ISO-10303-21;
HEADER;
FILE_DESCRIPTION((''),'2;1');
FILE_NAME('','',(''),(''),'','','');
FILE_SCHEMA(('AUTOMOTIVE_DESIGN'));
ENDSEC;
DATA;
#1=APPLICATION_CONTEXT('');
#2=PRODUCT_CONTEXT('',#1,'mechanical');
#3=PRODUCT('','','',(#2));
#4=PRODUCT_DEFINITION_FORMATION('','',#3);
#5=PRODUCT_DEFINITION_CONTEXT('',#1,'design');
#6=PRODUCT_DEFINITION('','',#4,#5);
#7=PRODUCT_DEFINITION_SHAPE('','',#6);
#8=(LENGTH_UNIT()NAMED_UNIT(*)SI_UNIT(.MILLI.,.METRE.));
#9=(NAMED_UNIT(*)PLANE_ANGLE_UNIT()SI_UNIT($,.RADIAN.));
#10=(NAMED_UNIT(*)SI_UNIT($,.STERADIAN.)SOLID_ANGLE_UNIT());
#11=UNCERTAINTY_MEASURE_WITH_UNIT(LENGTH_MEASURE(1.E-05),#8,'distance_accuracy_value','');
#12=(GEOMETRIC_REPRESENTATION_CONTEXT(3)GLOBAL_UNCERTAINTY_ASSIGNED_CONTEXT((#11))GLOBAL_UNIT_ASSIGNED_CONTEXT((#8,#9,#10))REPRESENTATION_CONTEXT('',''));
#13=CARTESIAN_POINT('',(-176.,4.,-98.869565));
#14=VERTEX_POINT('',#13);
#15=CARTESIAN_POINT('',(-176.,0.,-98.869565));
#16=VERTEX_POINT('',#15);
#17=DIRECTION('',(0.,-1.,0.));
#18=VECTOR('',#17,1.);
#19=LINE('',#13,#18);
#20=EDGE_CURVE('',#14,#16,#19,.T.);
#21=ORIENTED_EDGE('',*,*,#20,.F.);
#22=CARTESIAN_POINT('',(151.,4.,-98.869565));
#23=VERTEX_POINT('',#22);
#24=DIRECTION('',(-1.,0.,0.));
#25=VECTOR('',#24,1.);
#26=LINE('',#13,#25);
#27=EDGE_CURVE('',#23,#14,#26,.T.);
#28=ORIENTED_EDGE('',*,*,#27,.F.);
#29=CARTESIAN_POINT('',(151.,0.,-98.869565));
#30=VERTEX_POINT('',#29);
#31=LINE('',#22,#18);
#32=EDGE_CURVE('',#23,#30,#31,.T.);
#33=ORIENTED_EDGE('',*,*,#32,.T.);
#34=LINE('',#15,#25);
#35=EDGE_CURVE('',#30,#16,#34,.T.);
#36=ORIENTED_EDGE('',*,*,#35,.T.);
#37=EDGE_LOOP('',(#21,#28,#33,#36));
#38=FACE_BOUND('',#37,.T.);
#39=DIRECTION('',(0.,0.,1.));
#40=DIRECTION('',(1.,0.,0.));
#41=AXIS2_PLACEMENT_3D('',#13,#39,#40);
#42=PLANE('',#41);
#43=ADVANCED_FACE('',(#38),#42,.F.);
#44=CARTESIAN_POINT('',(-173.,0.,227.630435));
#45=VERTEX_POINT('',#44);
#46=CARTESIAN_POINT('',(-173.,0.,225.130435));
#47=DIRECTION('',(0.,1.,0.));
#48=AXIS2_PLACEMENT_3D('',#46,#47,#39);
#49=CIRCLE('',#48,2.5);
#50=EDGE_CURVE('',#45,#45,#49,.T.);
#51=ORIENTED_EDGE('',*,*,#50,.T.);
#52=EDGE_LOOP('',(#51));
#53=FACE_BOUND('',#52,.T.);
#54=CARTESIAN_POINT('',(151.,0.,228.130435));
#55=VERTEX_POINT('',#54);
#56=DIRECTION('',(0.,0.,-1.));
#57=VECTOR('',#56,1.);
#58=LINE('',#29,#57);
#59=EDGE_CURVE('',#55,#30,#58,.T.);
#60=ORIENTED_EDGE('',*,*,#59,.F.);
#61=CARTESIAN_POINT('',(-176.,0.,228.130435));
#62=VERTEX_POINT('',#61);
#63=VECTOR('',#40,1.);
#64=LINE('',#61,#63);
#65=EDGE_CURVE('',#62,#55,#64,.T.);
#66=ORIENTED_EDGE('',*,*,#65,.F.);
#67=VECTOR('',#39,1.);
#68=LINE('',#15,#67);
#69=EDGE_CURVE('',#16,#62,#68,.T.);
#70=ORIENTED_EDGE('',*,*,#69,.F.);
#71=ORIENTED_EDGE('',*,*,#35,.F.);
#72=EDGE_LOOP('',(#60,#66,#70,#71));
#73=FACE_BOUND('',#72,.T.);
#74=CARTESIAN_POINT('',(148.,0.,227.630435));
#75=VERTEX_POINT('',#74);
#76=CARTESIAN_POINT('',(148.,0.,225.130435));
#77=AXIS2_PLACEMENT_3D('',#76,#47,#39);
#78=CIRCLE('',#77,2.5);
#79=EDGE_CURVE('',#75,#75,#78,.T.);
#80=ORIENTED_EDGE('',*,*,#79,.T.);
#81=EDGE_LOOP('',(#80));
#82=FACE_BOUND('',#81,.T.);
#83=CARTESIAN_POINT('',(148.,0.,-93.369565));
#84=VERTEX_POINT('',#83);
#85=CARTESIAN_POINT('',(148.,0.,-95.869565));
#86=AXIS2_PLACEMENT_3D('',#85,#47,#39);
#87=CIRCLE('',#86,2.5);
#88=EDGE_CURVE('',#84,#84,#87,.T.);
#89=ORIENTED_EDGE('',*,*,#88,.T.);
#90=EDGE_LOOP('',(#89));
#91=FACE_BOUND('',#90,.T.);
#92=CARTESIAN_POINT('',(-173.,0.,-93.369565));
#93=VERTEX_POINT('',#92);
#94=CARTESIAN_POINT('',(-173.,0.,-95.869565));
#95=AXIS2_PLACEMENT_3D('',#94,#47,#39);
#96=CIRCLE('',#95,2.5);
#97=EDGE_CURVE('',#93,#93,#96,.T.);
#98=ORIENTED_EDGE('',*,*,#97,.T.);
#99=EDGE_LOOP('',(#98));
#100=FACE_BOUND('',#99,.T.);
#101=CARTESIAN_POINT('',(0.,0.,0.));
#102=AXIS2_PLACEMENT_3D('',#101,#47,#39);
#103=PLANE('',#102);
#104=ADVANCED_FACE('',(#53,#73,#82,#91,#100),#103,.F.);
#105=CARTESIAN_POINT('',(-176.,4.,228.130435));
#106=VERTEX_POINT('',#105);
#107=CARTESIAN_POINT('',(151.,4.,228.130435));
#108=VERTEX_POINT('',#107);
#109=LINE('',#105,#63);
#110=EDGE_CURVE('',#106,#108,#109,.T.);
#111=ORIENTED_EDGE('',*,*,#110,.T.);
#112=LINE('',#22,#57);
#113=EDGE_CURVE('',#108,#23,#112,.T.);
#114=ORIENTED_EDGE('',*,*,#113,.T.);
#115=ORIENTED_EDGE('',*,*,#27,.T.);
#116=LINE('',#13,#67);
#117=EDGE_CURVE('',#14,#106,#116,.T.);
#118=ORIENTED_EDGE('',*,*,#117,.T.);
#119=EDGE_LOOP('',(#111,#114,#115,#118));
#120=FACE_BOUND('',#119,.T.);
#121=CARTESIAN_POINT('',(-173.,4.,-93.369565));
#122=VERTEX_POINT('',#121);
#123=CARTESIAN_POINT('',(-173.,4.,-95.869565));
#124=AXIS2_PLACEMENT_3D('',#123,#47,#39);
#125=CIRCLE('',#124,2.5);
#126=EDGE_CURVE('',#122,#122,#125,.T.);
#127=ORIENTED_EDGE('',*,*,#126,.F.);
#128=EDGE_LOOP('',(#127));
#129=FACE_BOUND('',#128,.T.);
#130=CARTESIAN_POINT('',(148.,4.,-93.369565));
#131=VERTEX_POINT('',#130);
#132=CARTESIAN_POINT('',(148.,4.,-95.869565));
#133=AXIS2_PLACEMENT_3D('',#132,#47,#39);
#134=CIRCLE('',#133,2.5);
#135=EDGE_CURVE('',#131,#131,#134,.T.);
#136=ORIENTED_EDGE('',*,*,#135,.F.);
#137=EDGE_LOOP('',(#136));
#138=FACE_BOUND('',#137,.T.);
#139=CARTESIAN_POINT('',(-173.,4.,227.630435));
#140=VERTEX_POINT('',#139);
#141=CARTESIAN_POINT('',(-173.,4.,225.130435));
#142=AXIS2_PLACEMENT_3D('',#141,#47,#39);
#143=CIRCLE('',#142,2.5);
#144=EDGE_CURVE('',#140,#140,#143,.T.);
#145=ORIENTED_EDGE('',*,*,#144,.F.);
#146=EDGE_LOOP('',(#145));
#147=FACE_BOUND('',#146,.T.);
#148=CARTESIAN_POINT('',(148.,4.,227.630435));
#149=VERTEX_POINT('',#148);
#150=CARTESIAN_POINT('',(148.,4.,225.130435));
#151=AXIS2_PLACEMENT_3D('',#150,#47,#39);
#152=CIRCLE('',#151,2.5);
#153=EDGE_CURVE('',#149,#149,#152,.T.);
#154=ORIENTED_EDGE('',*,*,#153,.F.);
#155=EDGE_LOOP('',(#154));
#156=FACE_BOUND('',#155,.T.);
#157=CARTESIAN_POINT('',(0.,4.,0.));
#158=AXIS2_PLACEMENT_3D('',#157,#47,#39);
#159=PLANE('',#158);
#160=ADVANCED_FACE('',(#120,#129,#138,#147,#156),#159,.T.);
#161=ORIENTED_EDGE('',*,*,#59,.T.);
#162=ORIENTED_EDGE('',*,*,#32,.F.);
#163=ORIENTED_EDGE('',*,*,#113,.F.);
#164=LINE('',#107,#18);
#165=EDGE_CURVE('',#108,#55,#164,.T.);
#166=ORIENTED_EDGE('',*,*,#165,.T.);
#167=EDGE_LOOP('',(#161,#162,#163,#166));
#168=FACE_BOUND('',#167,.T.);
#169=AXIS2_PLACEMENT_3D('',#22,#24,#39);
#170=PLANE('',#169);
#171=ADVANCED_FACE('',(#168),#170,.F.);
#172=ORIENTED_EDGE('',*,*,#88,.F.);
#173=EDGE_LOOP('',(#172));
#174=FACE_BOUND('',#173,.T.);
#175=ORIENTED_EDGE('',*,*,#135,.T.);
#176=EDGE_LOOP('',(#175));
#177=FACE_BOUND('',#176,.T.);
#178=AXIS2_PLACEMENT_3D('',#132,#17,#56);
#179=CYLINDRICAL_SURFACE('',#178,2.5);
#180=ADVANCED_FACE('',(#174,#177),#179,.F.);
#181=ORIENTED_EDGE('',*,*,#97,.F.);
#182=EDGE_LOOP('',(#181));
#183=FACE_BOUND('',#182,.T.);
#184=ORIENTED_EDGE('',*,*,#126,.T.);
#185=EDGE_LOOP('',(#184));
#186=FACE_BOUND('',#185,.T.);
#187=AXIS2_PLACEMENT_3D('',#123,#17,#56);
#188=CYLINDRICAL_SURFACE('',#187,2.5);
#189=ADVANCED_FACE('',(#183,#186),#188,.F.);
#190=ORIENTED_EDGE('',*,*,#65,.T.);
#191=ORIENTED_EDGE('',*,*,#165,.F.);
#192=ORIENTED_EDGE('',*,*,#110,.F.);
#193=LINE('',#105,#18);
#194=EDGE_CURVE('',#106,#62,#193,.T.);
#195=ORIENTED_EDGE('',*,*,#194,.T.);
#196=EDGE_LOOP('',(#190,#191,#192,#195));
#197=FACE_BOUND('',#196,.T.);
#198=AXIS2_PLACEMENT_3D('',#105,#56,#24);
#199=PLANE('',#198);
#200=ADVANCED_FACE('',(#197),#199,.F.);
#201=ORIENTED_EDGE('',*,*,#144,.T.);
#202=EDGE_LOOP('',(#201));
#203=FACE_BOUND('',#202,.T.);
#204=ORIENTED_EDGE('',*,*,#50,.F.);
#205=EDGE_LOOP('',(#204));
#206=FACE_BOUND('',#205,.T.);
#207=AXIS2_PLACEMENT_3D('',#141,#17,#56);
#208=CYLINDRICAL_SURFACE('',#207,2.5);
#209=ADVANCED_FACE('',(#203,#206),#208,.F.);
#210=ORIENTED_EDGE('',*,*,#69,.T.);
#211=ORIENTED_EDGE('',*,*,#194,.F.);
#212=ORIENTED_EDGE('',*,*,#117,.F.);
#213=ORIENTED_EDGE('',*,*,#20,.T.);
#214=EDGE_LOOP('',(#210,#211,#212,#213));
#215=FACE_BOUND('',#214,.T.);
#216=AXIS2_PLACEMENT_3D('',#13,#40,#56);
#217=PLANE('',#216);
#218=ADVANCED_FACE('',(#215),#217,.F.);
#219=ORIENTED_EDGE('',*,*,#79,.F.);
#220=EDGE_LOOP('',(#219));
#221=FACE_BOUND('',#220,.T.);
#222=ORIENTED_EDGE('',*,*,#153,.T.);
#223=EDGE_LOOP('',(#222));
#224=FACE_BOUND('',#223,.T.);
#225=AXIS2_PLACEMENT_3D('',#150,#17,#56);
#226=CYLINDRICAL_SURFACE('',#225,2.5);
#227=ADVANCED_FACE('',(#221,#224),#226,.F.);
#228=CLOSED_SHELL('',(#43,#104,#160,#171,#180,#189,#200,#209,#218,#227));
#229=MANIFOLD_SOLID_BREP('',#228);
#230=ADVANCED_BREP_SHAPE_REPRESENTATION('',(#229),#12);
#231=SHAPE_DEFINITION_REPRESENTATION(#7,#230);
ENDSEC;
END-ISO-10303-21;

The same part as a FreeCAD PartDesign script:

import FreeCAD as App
import Part
import Sketcher

V = App.Vector

doc = App.newDocument("Part")
body = doc.addObject("PartDesign::Body", "Body")

# Sketch on XZ plane
sketch1 = body.newObject("Sketcher::SketchObject", "Sketch")
sketch1.AttachmentSupport = (doc.getObject("XZ_Plane"), [""])
sketch1.MapMode = "FlatFace"
sketch1.addGeometry(Part.LineSegment(V(-176, -98.9, 0), V(-176, 228.1, 0)), False)
sketch1.addGeometry(Part.LineSegment(V(-176, 228.1, 0), V(151, 228.1, 0)), False)
sketch1.addGeometry(Part.LineSegment(V(151, 228.1, 0), V(151, -98.9, 0)), False)
sketch1.addGeometry(Part.LineSegment(V(151, -98.9, 0), V(-176, -98.9, 0)), False)
sketch1.addGeometry(Part.Circle(V(-173, 225.1, 0), V(0, 0, 1), 2.5), False)
sketch1.addGeometry(Part.Circle(V(148, 225.1, 0), V(0, 0, 1), 2.5), False)
sketch1.addGeometry(Part.Circle(V(-173, -95.9, 0), V(0, 0, 1), 2.5), False)
sketch1.addGeometry(Part.Circle(V(148, -95.9, 0), V(0, 0, 1), 2.5), False)
sketch1.addConstraint(Sketcher.Constraint("Coincident", 0, 2, 1, 1))
sketch1.addConstraint(Sketcher.Constraint("Coincident", 1, 2, 2, 1))
sketch1.addConstraint(Sketcher.Constraint("Coincident", 2, 2, 3, 1))
sketch1.addConstraint(Sketcher.Constraint("Coincident", 3, 2, 0, 1))
sketch1.addConstraint(Sketcher.Constraint("Vertical", 0))
sketch1.addConstraint(Sketcher.Constraint("Horizontal", 1))
sketch1.addConstraint(Sketcher.Constraint("Vertical", 2))
sketch1.addConstraint(Sketcher.Constraint("Horizontal", 3))
sketch1.addConstraint(Sketcher.Constraint("Equal", 4, 5))
sketch1.addConstraint(Sketcher.Constraint("Equal", 5, 6))
sketch1.addConstraint(Sketcher.Constraint("Equal", 6, 7))
sketch1.addConstraint(Sketcher.Constraint("Horizontal", 4, 3, 5, 3))
sketch1.addConstraint(Sketcher.Constraint("Horizontal", 6, 3, 7, 3))
sketch1.addConstraint(Sketcher.Constraint("Vertical", 4, 3, 6, 3))
sketch1.addConstraint(Sketcher.Constraint("Vertical", 5, 3, 7, 3))
sketch1.addConstraint(Sketcher.Constraint("Equal", 3, 0))
sketch1.addConstraint(Sketcher.Constraint("Diameter", 4, 5.0))
sketch1.addConstraint(Sketcher.Constraint("DistanceX", 1, 1, 1, 2, 327.0))
sketch1.addConstraint(Sketcher.Constraint("DistanceX", 4, 3, -1, 1, 173.0))
sketch1.addConstraint(Sketcher.Constraint("DistanceX", -1, 1, 5, 3, 148.0))
sketch1.addConstraint(Sketcher.Constraint("DistanceX", 0, 2, -1, 1, 176.0))
sketch1.addConstraint(Sketcher.Constraint("DistanceY", 6, 3, 4, 3, 321.0))
sketch1.addConstraint(Sketcher.Constraint("DistanceY", 4, 3, 0, 2, 3.0))
sketch1.addConstraint(Sketcher.Constraint("DistanceY", -1, 1, 4, 3, 225.130435))
pad1 = body.newObject("PartDesign::Pad", "Pad")
pad1.Profile = sketch1
pad1.Length = 4
pad1.Reversed = True

doc.recompute()
